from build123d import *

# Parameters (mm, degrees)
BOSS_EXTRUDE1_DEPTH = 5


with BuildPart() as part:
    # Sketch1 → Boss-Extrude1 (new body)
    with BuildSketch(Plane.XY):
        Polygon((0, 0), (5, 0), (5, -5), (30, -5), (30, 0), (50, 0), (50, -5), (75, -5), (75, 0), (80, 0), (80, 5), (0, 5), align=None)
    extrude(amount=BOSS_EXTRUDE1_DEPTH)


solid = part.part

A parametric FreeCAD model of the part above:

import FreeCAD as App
import Part
import Sketcher
from FreeCAD import Vector


def add_polygon(sketch, points):
    """Adds a closed chain of lines whose ends are joined by coincident constraints."""
    first, n = sketch.GeometryCount, len(points)
    for a, b in zip(points, points[1:] + points[:1]):
        sketch.addGeometry(Part.LineSegment(App.Vector(*a, 0), App.Vector(*b, 0)), False)
    for i in range(n):
        sketch.addConstraint(Sketcher.Constraint("Coincident", first + i, 2, first + (i + 1) % n, 1))

doc = App.newDocument("Part")
params = doc.addObject("Spreadsheet::Sheet", "Params")
for row, (alias, value) in enumerate([
    ("sketch1_width", "5 mm"),
    ("sketch1_width2", "25 mm"),
    ("sketch1_width3", "20 mm"),
    ("pad1_length", "5 mm"),
], start=1):
    params.set(f"A{row}", alias)
    params.set(f"B{row}", "=" + value)
    params.setAlias(f"B{row}", alias)

body = doc.addObject("PartDesign::Body", "Body")

sketch1 = body.newObject("Sketcher::SketchObject", "Sketch")
sketch1.AttachmentSupport = (doc.getObject("XY_Plane"), [""])
sketch1.MapMode = "FlatFace"
add_polygon(sketch1, [(0, 0), (5, 0), (5, -5), (30, -5), (30, 0), (50, 0), (50, -5), (75, -5), (75, 0), (80, 0), (80, 5), (0, 5)])
sketch1.addConstraint(Sketcher.Constraint("Horizontal", 0))
sketch1.addConstraint(Sketcher.Constraint("Vertical", 1))
sketch1.addConstraint(Sketcher.Constraint("Horizontal", 2))
sketch1.addConstraint(Sketcher.Constraint("Vertical", 3))
sketch1.addConstraint(Sketcher.Constraint("Horizontal", 4))
sketch1.addConstraint(Sketcher.Constraint("Vertical", 5))
sketch1.addConstraint(Sketcher.Constraint("Horizontal", 6))
sketch1.addConstraint(Sketcher.Constraint("Vertical", 7))
sketch1.addConstraint(Sketcher.Constraint("Horizontal", 8))
sketch1.addConstraint(Sketcher.Constraint("Vertical", 9))
sketch1.addConstraint(Sketcher.Constraint("Horizontal", 10))
sketch1.addConstraint(Sketcher.Constraint("Vertical", 11))
sketch1.addConstraint(Sketcher.Constraint("Coincident", 11, 2, -1, 1))
sketch1.addConstraint(Sketcher.Constraint("PointOnObject", 3, 2, -1))
sketch1.addConstraint(Sketcher.Constraint("PointOnObject", 7, 2, -1))
sketch1.addConstraint(Sketcher.Constraint("Horizontal", 2, 2, 5, 2))
sketch1.addConstraint(Sketcher.Constraint("Equal", 2, 6))
sketch1.addConstraint(Sketcher.Constraint("Equal", 0, 8))
sketch1.addConstraint(Sketcher.Constraint("Equal", 8, 1))
sketch1.addConstraint(Sketcher.Constraint("Equal", 7, 9))
sketch1.addConstraint(Sketcher.Constraint("DistanceX", 0, 1, 0, 2, 5.0))
sketch1.addConstraint(Sketcher.Constraint("DistanceX", 2, 1, 2, 2, 25.0))
sketch1.addConstraint(Sketcher.Constraint("DistanceX", 4, 1, 4, 2, 20.0))
sketch1.setExpression("Constraints[32]", "Params.sketch1_width")
sketch1.setExpression("Constraints[33]", "Params.sketch1_width2")
sketch1.setExpression("Constraints[34]", "Params.sketch1_width3")
pad1 = body.newObject("PartDesign::Pad", "Pad")
pad1.Profile = sketch1
pad1.setExpression("Length", "Params.pad1_length")

doc.recompute()
